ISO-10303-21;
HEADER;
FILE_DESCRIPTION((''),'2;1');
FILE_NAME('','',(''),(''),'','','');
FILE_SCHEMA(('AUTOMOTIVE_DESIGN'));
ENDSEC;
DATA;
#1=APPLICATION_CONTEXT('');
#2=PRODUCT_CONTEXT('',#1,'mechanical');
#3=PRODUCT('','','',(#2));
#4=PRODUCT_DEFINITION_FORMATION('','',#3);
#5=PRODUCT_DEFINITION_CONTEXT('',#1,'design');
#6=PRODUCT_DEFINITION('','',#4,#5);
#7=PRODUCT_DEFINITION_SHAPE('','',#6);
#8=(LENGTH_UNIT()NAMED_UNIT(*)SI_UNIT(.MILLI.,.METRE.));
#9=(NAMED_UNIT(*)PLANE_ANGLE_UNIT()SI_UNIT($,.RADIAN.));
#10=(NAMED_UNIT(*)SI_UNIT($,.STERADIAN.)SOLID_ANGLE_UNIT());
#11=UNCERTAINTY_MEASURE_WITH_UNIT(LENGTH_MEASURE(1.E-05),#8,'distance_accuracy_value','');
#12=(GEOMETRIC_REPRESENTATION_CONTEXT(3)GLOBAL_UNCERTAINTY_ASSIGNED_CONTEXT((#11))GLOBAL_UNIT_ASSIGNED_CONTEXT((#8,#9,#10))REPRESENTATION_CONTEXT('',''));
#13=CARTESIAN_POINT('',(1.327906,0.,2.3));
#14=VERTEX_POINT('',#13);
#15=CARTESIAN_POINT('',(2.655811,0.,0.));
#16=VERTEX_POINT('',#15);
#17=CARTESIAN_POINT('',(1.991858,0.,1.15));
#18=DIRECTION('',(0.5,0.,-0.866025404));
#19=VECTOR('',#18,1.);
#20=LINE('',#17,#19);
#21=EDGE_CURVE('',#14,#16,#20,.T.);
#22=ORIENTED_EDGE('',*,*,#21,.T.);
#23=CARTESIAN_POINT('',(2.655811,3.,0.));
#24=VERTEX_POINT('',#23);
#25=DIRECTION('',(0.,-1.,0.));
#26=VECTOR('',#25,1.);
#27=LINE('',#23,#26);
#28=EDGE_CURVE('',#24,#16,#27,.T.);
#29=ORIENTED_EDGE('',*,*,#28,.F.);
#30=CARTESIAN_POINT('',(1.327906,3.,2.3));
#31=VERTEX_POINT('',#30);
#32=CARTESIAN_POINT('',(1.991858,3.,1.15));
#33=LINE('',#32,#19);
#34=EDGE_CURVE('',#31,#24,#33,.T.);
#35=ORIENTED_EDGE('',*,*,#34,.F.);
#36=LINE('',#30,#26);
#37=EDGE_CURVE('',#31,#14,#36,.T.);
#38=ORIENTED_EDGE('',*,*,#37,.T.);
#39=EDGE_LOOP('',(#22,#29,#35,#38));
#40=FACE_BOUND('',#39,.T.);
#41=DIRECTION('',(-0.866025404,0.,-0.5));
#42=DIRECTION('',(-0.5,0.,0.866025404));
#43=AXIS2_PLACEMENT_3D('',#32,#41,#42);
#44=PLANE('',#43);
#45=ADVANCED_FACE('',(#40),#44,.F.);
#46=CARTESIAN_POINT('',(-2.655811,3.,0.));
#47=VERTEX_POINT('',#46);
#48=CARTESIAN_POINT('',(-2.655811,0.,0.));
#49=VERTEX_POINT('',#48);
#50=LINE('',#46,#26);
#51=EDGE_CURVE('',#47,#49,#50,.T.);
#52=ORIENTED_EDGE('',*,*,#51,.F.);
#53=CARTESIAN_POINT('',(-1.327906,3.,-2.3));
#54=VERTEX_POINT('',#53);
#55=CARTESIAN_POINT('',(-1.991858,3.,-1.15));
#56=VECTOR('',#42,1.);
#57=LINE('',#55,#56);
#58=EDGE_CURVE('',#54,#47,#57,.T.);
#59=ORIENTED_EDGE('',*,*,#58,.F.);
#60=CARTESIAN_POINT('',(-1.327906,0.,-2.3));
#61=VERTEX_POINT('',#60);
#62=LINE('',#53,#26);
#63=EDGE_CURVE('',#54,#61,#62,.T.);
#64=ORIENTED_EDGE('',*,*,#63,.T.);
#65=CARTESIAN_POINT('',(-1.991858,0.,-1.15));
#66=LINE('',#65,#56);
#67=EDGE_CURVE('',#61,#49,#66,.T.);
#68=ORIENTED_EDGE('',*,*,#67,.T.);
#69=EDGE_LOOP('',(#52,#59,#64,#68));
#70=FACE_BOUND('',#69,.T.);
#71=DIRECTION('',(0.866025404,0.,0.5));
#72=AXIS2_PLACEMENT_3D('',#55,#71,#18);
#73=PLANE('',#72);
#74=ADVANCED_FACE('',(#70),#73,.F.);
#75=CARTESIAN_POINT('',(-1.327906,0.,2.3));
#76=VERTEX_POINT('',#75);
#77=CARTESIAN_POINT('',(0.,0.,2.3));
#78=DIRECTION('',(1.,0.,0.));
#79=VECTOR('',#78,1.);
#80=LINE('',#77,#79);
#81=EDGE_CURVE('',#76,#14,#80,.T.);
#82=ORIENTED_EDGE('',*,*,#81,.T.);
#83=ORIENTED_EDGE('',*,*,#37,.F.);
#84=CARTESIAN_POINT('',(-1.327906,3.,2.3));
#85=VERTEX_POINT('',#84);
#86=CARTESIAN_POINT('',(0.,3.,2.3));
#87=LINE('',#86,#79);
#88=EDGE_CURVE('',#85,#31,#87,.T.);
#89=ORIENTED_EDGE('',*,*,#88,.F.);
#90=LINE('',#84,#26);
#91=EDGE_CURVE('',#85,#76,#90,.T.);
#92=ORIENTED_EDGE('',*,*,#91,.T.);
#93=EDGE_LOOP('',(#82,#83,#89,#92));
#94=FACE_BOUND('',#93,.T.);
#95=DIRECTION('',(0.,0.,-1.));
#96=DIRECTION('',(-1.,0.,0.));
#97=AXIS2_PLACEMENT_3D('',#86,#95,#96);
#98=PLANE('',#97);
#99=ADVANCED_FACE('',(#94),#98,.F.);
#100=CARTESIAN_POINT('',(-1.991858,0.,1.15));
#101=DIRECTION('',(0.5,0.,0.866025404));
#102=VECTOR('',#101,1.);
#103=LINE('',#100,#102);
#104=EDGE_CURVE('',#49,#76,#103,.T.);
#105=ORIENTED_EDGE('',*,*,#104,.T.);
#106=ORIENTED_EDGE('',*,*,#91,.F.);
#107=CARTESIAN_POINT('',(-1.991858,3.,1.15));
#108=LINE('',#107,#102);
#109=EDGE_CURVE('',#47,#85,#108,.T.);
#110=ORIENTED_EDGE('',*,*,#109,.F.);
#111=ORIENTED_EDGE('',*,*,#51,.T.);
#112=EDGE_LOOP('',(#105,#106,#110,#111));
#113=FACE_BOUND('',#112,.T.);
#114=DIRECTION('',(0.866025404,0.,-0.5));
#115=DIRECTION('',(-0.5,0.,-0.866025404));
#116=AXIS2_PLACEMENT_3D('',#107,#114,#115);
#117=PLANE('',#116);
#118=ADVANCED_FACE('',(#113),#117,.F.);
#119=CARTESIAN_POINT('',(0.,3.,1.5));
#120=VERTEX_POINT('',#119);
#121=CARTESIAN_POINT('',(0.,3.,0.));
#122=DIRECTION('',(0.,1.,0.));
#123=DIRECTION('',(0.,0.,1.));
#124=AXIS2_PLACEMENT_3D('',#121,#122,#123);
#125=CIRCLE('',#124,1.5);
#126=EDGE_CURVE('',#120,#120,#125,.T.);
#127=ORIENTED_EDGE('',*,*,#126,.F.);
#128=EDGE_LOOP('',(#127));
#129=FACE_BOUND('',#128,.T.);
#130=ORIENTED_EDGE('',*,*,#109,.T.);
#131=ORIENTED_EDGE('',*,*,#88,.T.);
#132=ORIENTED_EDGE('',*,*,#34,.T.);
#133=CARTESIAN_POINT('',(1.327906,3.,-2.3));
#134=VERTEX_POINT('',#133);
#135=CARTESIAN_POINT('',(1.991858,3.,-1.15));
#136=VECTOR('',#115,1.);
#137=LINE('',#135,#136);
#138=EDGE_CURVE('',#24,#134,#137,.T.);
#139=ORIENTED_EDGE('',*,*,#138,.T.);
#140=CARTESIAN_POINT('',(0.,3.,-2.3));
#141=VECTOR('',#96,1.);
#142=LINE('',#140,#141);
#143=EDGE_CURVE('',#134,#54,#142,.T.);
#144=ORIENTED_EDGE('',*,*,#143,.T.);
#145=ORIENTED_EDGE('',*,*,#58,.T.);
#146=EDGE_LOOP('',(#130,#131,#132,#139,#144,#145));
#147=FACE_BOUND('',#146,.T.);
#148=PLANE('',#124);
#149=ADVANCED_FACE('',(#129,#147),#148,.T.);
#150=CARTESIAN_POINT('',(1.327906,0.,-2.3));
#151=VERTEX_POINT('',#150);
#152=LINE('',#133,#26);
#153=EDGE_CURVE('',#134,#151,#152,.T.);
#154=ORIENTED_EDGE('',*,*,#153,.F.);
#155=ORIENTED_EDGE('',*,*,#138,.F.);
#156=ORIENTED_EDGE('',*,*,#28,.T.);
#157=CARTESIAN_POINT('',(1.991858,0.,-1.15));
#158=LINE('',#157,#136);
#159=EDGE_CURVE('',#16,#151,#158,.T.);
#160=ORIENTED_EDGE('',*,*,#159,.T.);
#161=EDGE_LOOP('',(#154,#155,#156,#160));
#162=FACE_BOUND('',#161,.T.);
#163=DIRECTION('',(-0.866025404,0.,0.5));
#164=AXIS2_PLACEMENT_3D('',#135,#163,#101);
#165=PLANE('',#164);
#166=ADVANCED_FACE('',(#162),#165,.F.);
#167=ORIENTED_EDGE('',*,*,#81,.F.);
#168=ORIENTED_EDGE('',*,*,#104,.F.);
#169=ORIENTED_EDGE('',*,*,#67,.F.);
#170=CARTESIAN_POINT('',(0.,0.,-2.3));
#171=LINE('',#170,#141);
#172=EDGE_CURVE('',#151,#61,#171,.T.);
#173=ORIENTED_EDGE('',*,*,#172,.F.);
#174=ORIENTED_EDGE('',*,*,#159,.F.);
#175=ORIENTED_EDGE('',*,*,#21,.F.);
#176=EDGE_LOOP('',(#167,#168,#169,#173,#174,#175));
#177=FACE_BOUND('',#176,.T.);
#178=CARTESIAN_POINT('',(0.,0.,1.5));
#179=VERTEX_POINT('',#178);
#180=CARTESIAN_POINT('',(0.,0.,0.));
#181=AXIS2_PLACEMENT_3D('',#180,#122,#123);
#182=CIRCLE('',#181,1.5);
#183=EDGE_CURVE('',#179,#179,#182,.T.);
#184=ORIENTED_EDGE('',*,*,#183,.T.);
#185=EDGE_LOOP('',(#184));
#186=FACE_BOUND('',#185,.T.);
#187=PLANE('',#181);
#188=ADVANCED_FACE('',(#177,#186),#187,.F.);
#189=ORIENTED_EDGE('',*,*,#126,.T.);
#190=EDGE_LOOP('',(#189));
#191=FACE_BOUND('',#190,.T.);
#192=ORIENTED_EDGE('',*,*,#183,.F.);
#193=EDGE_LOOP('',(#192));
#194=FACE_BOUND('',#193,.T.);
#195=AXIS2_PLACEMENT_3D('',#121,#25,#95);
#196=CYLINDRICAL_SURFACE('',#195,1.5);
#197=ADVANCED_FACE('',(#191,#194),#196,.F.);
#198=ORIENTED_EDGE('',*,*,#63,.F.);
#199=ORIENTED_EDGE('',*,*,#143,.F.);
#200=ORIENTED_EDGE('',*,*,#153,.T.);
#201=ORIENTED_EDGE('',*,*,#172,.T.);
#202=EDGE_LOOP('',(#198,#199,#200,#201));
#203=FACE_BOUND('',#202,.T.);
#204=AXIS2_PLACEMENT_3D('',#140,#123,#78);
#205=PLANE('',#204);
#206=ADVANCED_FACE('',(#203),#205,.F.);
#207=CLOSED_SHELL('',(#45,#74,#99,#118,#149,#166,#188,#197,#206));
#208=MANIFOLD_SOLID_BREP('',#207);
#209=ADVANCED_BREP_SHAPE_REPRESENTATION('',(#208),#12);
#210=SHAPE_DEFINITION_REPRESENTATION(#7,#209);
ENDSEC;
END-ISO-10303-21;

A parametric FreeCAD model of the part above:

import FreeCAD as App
import Part
import Sketcher
from FreeCAD import Vector
Q = App.Units.Quantity


def add_polygon(sketch, points):
    """Adds a closed chain of lines whose ends are joined by coincident constraints."""
    first, n = sketch.GeometryCount, len(points)
    for a, b in zip(points, points[1:] + points[:1]):
        sketch.addGeometry(Part.LineSegment(App.Vector(*a, 0), App.Vector(*b, 0)), False)
    for i in range(n):
        sketch.addConstraint(Sketcher.Constraint("Coincident", first + i, 2, first + (i + 1) % n, 1))

doc = App.newDocument("Part")
params = doc.addObject("Spreadsheet::Sheet", "Params")
for row, (alias, value) in enumerate([
    ("sketch1_diameter", "3 mm"),
    ("pad1_length", "3 mm"),
], start=1):
    params.set(f"A{row}", alias)
    params.set(f"B{row}", "=" + value)
    params.setAlias(f"B{row}", alias)

body = doc.addObject("PartDesign::Body", "Body")

sketch1 = body.newObject("Sketcher::SketchObject", "Sketch")
sketch1.AttachmentSupport = (doc.getObject("XZ_Plane"), [""])
sketch1.MapMode = "FlatFace"
add_polygon(sketch1, [(-1.3, -2.3), (-2.7, 0), (-1.3, 2.3), (1.3, 2.3), (2.7, 0), (1.3, -2.3)])
sketch1.addGeometry(Part.Circle(Vector(0, 0, 0), Vector(0, 0, 1), 1.5), False)
sketch1.addConstraint([
    Sketcher.Constraint("Horizontal", 2),
    Sketcher.Constraint("Horizontal", 5),
    Sketcher.Constraint("Coincident", 6, 3, -1, 1),
    Sketcher.Constraint("Symmetric", 0, 2, 3, 2, -1, 1),
    Sketcher.Constraint("Symmetric", 1, 2, 4, 2, -1, 1),
    Sketcher.Constraint("PointOnObject", 0, 2, -1),
    Sketcher.Constraint("Parallel", 0, 3),
    Sketcher.Constraint("Vertical", 2, 2, 4, 2),
    Sketcher.Constraint("Diameter", 6, 3.0),
    Sketcher.Constraint("Angle", 0, Q("120 deg")),
    Sketcher.Constraint("DistanceY", -1, 1, 1, 2, 2.3),
    Sketcher.Constraint("DistanceX", 2, 1, 2, 2, 2.655811),
])
sketch1.setExpression("Constraints[14]", "Params.sketch1_diameter")
pad1 = body.newObject("PartDesign::Pad", "Pad")
pad1.Profile = sketch1
pad1.setExpression("Length", "Params.pad1_length")
pad1.Reversed = True

doc.recompute()
